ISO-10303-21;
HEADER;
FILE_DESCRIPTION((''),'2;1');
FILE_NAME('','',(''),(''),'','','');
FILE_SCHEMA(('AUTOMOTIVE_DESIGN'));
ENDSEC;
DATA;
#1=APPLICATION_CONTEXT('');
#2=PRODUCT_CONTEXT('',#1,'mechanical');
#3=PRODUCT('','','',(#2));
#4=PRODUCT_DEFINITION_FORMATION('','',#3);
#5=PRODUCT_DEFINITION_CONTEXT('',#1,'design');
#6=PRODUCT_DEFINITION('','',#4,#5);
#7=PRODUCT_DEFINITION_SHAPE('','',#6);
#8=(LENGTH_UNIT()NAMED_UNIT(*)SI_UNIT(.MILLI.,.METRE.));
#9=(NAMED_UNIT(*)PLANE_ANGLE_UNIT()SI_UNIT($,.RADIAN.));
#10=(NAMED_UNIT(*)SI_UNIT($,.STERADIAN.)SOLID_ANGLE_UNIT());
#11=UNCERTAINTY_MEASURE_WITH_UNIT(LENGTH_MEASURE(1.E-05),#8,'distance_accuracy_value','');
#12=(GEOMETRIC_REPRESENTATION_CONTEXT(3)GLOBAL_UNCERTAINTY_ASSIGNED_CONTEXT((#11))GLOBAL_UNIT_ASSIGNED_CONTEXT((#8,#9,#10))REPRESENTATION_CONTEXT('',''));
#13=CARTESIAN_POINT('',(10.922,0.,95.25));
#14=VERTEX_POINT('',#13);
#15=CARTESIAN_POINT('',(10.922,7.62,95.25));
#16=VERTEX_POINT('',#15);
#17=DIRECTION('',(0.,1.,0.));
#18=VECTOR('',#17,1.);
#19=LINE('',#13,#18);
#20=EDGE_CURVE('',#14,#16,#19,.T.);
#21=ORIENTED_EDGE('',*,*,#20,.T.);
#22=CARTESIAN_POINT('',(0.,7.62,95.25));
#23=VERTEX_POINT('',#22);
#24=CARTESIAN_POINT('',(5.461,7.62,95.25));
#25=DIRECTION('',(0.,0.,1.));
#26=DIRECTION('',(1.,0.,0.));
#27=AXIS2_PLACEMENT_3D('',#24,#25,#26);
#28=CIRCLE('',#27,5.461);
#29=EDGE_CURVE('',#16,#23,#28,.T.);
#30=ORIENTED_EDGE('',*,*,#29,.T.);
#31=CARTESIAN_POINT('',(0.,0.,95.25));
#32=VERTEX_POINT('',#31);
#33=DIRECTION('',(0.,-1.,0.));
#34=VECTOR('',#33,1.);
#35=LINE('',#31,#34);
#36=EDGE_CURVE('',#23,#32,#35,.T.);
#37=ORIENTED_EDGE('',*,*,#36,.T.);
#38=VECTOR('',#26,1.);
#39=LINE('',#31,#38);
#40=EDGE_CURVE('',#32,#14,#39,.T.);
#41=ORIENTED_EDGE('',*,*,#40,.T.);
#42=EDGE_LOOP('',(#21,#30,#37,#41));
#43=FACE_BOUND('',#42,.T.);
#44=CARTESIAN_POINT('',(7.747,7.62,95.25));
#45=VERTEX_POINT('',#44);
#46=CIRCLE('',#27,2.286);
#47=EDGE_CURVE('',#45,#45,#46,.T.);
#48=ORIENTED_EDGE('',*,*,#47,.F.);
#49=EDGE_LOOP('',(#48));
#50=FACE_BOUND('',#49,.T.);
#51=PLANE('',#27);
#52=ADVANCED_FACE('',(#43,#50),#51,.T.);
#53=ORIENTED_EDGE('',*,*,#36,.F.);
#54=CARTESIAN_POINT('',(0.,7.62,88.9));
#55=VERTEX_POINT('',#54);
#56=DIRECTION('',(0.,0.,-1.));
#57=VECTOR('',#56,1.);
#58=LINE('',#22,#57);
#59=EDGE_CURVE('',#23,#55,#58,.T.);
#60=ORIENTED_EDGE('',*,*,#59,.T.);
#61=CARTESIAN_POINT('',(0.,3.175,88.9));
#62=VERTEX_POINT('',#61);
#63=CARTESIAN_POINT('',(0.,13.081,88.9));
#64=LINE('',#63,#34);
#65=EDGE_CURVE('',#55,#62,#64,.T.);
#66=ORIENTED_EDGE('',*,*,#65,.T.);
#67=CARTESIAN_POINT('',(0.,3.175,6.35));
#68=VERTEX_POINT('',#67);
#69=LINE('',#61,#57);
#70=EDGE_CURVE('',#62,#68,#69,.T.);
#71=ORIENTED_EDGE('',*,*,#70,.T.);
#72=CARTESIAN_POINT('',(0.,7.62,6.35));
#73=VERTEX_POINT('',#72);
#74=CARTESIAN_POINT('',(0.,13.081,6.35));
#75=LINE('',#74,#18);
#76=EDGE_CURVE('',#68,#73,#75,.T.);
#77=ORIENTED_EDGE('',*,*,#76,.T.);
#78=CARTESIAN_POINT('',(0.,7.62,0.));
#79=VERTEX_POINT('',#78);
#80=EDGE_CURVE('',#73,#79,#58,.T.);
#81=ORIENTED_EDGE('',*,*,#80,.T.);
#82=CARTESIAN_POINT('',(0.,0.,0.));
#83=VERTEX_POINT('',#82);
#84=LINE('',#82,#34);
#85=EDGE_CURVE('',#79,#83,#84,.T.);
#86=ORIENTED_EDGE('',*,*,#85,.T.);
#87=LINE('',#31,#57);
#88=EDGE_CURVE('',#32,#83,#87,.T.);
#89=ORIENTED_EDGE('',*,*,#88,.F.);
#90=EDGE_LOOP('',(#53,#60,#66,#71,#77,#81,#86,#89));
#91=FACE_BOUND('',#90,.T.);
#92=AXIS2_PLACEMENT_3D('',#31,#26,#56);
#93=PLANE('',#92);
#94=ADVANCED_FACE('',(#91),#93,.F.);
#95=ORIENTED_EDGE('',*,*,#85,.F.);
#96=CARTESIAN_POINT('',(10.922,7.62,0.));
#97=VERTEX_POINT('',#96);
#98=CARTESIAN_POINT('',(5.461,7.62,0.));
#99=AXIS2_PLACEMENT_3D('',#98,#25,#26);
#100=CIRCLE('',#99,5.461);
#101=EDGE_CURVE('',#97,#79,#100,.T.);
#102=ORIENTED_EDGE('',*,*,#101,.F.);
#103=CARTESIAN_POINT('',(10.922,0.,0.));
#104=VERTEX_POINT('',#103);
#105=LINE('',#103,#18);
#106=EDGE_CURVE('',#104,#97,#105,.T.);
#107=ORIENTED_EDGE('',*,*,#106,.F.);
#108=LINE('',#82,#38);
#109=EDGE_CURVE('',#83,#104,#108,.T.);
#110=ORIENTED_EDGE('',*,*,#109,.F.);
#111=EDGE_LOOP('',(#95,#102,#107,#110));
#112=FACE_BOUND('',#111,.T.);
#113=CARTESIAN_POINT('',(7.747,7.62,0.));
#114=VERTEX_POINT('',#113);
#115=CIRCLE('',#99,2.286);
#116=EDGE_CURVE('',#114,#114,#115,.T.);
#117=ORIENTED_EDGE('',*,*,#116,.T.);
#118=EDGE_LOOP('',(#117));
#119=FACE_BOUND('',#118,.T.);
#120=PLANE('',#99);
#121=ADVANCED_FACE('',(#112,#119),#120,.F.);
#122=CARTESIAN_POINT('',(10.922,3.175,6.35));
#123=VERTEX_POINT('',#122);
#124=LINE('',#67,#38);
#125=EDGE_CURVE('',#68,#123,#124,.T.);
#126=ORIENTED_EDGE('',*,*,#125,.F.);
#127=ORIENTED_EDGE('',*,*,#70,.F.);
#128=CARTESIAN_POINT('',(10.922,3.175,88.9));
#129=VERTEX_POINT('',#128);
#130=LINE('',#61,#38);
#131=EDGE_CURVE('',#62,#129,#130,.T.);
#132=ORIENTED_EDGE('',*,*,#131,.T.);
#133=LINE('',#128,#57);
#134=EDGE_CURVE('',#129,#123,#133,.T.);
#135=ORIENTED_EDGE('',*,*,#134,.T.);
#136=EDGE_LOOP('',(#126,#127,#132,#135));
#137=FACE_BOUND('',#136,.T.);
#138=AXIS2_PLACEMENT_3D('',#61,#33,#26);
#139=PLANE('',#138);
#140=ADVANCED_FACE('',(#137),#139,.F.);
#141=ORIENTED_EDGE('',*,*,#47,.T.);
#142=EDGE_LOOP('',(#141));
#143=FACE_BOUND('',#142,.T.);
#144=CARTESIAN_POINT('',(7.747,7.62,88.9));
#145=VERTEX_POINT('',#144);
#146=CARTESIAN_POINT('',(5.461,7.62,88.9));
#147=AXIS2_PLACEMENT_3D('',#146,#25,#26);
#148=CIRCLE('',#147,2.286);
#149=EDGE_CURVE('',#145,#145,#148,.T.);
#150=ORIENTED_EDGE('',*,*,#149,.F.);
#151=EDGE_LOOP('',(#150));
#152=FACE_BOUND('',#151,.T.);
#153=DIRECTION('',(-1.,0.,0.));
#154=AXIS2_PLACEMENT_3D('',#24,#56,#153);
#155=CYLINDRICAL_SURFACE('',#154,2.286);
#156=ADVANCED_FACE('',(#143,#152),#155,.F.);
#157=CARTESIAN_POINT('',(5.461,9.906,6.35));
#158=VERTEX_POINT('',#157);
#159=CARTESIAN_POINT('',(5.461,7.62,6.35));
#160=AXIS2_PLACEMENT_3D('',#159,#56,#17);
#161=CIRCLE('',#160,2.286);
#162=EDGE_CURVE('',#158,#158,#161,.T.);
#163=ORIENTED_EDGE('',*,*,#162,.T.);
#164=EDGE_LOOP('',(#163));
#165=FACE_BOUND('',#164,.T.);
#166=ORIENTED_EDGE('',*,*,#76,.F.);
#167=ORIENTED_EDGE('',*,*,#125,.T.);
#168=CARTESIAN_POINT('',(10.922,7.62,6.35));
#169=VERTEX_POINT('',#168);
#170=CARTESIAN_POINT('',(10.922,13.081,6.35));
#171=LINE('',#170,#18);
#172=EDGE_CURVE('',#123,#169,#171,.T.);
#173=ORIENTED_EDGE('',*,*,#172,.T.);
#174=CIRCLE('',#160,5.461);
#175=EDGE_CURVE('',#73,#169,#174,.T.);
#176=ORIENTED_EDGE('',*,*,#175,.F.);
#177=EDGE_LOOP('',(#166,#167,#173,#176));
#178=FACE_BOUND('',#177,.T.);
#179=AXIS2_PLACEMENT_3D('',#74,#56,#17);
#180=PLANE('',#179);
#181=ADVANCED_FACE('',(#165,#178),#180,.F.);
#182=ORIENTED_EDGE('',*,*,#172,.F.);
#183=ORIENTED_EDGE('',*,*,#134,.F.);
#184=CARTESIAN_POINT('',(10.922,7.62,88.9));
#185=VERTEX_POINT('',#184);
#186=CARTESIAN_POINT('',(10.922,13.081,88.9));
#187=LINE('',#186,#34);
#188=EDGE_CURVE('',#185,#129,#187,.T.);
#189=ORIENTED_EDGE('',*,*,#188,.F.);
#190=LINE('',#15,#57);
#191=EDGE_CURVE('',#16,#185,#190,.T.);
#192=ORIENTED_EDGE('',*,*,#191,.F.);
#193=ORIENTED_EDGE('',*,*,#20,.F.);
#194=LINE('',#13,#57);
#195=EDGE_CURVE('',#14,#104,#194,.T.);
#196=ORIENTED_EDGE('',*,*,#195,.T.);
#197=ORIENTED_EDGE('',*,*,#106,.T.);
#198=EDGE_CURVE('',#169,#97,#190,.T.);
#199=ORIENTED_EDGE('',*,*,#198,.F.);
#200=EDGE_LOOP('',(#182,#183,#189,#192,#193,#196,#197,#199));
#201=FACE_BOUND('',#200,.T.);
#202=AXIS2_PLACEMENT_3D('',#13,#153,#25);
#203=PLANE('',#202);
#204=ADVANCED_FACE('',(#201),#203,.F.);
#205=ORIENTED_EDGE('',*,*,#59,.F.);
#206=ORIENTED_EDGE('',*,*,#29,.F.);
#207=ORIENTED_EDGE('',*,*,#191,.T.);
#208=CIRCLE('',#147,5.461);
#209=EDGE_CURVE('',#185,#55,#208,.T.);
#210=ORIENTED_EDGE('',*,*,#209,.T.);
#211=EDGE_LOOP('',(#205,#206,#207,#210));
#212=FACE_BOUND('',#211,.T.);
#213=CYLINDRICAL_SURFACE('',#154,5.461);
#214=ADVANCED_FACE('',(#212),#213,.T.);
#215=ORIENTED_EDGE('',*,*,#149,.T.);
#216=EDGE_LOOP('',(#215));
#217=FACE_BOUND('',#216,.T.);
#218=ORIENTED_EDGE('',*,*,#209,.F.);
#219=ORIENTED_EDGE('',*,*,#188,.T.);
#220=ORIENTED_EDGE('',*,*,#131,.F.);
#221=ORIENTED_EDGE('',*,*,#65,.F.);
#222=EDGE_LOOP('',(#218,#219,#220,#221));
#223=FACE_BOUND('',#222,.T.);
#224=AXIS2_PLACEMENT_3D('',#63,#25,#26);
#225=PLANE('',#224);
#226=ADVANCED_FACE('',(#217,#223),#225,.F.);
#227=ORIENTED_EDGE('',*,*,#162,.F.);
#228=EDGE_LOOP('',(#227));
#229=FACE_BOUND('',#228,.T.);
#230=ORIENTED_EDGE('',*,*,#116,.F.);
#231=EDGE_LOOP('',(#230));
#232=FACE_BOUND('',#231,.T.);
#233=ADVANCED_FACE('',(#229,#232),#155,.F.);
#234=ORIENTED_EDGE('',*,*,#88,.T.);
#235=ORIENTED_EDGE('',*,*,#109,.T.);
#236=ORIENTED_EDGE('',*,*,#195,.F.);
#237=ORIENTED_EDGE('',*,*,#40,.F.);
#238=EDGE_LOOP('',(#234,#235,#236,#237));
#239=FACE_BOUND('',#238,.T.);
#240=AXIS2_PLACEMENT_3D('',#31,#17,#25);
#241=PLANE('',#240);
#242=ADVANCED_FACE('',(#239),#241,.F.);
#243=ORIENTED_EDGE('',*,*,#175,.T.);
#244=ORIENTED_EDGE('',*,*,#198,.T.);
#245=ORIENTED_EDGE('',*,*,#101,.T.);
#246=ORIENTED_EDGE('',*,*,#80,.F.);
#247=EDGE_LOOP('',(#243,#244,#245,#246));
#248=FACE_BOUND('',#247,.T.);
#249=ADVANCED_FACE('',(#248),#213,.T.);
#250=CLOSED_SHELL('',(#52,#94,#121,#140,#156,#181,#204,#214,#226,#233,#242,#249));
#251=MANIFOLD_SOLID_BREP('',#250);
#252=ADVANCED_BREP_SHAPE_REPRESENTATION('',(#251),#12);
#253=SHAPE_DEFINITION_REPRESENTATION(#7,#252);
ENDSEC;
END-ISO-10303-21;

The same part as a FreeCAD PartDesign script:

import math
import FreeCAD as App
import Part
import Sketcher
Q = App.Units.Quantity

doc = App.newDocument("Part")
body = doc.addObject("PartDesign::Body", "Body")

sketch1 = body.newObject("Sketcher::SketchObject", "Sketch")
sketch1.AttachmentSupport = (doc.getObject("XY_Plane"), [""])
sketch1.MapMode = "FlatFace"
sketch1.addGeometry(Part.LineSegment(App.Vector(0, 0, 0), App.Vector(10.9, 0, 0)), False)
sketch1.addGeometry(Part.LineSegment(App.Vector(10.9, 0, 0), App.Vector(10.9, 7.6, 0)), False)
sketch1.addGeometry(Part.ArcOfCircle(Part.Circle(App.Vector(5.5, 7.6, 0), App.Vector(0, 0, 1), 5.5), math.radians(0), math.radians(180)), False)
sketch1.addGeometry(Part.LineSegment(App.Vector(0, 7.6, 0), App.Vector(0, 0, 0)), False)
sketch1.addGeometry(Part.Circle(App.Vector(5.5, 7.6, 0), App.Vector(0, 0, 1), 2.3), False)
sketch1.addConstraint(Sketcher.Constraint("Coincident", 0, 2, 1, 1))
sketch1.addConstraint(Sketcher.Constraint("Tangent", 1, 2, 2, 1))
sketch1.addConstraint(Sketcher.Constraint("Tangent", 2, 2, 3, 1))
sketch1.addConstraint(Sketcher.Constraint("Coincident", 3, 2, 0, 1))
sketch1.addConstraint(Sketcher.Constraint("Horizontal", 0))
sketch1.addConstraint(Sketcher.Constraint("Vertical", 1))
sketch1.addConstraint(Sketcher.Constraint("Vertical", 3))
sketch1.addConstraint(Sketcher.Constraint("Coincident", 3, 2, -1, 1))
sketch1.addConstraint(Sketcher.Constraint("Coincident", 4, 3, 2, 3))
sketch1.addConstraint(Sketcher.Constraint("Diameter", 4, Q("0.18 in")))
sketch1.addConstraint(Sketcher.Constraint("DistanceY", 1, 1, 1, 2, Q("0.3 in")))
sketch1.addConstraint(Sketcher.Constraint("Radius", 2, Q("0.215 in")))
pad1 = body.newObject("PartDesign::Pad", "Pad")
pad1.Profile = sketch1
pad1.Length = Q("3.75 in")

sketch2 = body.newObject("Sketcher::SketchObject", "Sketch001")
sketch2.AttachmentSupport = (doc.getObject("YZ_Plane"), [""])
sketch2.MapMode = "FlatFace"
sketch2.AttachmentOffset = App.Placement(App.Vector(0, 0, 0.43 * 25.4), App.Rotation())
sketch2.addGeometry(Part.LineSegment(App.Vector(13, 89, 0), App.Vector(3, 89, 0)), False)
sketch2.addGeometry(Part.LineSegment(App.Vector(3, 89, 0), App.Vector(3, 6, 0)), False)
sketch2.addGeometry(Part.LineSegment(App.Vector(3, 6, 0), App.Vector(13, 6, 0)), False)
sketch2.addGeometry(Part.LineSegment(App.Vector(13, 6, 0), App.Vector(13, 89, 0)), False)
sketch2.addConstraint(Sketcher.Constraint("Coincident", 0, 2, 1, 1))
sketch2.addConstraint(Sketcher.Constraint("Coincident", 1, 2, 2, 1))
sketch2.addConstraint(Sketcher.Constraint("Coincident", 2, 2, 3, 1))
sketch2.addConstraint(Sketcher.Constraint("Coincident", 3, 2, 0, 1))
sketch2.addConstraint(Sketcher.Constraint("Horizontal", 0))
sketch2.addConstraint(Sketcher.Constraint("Vertical", 1))
sketch2.addConstraint(Sketcher.Constraint("Horizontal", 2))
sketch2.addConstraint(Sketcher.Constraint("Vertical", 3))
sketch2.addConstraint(Sketcher.Constraint("DistanceX", 0, 2, 0, 1, Q("0.39 in")))
sketch2.addConstraint(Sketcher.Constraint("DistanceY", 1, 2, 1, 1, Q("3.25 in")))
sketch2.addConstraint(Sketcher.Constraint("DistanceY", -1, 1, 0, 2, Q("3.5 in")))
sketch2.addConstraint(Sketcher.Constraint("DistanceX", -1, 1, 0, 2, Q("0.125 in")))
pocket1 = body.newObject("PartDesign::Pocket", "Pocket")
pocket1.Profile = sketch2
pocket1.Type = "ThroughAll"

doc.recompute()
